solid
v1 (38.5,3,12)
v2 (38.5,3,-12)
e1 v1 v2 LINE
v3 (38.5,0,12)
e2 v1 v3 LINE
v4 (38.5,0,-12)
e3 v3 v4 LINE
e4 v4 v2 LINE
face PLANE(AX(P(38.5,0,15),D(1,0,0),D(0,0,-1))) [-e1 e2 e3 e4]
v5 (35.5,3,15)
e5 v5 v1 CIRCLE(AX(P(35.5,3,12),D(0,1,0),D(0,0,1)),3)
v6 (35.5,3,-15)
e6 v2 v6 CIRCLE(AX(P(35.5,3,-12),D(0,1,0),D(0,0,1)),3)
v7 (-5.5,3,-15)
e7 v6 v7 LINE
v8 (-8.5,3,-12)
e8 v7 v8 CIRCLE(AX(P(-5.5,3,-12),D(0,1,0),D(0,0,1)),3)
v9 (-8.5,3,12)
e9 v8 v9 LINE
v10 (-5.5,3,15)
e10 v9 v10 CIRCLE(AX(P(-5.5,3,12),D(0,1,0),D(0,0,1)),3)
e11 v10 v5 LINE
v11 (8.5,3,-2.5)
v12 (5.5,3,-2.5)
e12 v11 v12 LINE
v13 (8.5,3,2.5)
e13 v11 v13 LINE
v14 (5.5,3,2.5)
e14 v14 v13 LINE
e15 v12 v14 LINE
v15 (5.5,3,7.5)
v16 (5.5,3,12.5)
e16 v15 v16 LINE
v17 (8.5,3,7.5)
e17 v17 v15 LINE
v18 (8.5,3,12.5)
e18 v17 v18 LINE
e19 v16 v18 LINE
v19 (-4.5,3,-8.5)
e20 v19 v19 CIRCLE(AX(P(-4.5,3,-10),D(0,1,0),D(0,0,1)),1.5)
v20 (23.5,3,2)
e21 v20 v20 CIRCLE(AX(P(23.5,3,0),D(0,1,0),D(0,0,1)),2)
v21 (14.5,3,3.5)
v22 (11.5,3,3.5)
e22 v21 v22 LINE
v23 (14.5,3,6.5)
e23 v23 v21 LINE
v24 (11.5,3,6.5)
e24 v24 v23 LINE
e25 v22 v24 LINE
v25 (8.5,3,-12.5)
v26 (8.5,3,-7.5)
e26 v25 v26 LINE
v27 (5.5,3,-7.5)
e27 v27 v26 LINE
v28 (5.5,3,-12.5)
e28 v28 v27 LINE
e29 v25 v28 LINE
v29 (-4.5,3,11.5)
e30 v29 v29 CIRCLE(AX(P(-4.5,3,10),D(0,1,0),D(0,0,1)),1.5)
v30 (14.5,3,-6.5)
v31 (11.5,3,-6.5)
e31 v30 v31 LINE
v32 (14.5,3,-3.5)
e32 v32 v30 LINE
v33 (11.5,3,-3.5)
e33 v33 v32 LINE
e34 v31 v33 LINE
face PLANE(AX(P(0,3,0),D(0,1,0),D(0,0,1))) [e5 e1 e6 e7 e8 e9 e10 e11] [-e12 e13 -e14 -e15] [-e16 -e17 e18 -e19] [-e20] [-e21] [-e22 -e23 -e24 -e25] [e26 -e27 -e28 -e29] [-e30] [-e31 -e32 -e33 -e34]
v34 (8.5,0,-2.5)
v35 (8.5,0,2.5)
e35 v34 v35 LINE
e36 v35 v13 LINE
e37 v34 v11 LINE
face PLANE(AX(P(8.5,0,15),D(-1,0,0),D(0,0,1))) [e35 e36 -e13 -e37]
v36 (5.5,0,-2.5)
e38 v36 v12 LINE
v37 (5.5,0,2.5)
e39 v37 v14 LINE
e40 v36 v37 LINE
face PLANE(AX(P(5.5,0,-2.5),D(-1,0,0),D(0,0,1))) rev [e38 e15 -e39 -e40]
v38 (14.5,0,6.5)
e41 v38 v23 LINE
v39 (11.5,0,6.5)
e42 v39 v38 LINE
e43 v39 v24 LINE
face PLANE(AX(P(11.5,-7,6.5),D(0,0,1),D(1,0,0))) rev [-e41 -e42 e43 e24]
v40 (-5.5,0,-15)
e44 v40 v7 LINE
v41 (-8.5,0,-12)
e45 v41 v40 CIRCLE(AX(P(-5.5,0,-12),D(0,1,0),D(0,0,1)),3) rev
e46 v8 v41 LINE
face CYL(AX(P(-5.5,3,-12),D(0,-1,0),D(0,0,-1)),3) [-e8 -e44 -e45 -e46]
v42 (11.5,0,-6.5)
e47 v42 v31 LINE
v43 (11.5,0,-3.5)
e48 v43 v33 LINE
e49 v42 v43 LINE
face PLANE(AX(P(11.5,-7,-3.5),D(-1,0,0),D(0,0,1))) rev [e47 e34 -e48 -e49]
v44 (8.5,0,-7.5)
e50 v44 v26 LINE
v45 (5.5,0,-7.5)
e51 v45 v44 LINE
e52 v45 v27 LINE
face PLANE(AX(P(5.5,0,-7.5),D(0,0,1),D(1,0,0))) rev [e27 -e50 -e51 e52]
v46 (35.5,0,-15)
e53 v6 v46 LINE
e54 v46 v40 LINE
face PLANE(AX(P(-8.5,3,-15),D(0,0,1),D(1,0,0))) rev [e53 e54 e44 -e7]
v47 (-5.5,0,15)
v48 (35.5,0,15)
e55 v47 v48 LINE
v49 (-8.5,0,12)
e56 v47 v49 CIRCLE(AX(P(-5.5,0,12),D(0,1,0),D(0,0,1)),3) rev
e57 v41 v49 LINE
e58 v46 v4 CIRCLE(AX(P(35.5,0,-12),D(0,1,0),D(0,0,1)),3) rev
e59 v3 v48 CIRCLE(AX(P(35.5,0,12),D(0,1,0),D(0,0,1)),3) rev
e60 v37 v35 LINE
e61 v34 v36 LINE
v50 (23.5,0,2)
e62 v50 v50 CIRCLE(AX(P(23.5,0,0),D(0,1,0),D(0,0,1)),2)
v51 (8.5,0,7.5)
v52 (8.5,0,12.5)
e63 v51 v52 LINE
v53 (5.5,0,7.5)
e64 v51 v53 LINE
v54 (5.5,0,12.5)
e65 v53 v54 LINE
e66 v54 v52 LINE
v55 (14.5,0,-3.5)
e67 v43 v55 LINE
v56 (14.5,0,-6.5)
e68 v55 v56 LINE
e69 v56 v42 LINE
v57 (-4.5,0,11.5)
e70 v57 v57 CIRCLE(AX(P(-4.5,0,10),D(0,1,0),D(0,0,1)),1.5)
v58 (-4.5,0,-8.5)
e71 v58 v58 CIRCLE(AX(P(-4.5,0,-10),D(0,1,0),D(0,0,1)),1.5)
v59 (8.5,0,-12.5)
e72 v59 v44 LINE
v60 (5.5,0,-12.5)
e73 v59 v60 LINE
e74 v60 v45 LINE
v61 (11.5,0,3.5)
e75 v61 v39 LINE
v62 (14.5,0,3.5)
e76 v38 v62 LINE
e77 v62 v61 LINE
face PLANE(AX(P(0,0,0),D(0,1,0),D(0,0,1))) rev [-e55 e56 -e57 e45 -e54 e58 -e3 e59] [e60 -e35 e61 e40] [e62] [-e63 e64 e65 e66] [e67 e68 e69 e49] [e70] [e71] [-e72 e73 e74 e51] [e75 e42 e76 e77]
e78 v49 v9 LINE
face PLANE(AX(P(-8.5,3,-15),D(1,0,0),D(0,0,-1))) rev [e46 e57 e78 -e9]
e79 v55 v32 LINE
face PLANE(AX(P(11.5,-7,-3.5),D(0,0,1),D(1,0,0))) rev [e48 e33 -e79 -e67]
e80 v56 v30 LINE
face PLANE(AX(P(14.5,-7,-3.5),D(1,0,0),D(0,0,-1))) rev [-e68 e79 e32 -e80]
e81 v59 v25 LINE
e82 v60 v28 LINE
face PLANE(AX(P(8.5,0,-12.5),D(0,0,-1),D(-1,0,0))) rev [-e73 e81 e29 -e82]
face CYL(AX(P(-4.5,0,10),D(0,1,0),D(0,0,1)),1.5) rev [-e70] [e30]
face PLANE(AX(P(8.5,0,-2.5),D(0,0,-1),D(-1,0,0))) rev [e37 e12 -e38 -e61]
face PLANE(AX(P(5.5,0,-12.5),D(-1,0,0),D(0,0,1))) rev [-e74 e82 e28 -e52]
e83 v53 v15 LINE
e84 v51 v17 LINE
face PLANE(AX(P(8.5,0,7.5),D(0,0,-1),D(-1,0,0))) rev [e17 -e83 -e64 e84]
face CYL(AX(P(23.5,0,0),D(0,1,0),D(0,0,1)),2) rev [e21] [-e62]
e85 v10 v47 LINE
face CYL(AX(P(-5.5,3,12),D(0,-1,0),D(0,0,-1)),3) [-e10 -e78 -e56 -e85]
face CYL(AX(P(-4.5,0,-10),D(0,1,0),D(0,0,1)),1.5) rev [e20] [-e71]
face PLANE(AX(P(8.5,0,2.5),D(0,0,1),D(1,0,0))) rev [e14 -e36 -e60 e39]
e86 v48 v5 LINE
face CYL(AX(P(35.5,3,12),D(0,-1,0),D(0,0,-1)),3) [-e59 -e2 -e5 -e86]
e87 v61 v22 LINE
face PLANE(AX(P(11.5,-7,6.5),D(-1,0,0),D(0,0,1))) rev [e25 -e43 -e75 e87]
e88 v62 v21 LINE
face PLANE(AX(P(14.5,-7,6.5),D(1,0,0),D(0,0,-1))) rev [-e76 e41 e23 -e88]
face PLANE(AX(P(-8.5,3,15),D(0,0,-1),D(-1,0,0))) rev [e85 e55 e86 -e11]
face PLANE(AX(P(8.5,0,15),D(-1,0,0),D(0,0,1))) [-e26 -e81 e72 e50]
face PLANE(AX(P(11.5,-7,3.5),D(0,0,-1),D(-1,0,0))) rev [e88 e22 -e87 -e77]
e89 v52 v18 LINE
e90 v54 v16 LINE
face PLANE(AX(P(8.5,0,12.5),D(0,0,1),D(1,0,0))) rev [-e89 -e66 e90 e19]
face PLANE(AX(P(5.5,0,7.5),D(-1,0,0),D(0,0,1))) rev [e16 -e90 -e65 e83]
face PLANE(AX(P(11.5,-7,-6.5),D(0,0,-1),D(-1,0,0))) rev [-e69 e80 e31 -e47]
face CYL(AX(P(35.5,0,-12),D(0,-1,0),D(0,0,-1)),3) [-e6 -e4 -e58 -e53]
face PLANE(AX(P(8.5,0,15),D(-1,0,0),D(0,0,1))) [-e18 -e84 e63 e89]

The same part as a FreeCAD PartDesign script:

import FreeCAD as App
import Part
import Sketcher
from FreeCAD import Vector
Q = App.Units.Quantity


def edges_at(feature, points):
    """Names of the edges that pass closest to the given points."""
    edges = feature.Shape.Edges
    near = lambda p: min(range(len(edges)), key=lambda i: edges[i].distToShape(Part.Vertex(*p))[0])
    return sorted({f"Edge{near(p) + 1}" for p in points})


def add_polygon(sketch, points):
    """Adds a closed chain of lines whose ends are joined by coincident constraints."""
    first, n = sketch.GeometryCount, len(points)
    for a, b in zip(points, points[1:] + points[:1]):
        sketch.addGeometry(Part.LineSegment(App.Vector(*a, 0), App.Vector(*b, 0)), False)
    for i in range(n):
        sketch.addConstraint(Sketcher.Constraint("Coincident", first + i, 2, first + (i + 1) % n, 1))

doc = App.newDocument("Part")
body = doc.addObject("PartDesign::Body", "Body")

# Sketch on XZ plane
sketch1 = body.newObject("Sketcher::SketchObject", "Sketch")
sketch1.AttachmentSupport = (doc.getObject("XZ_Plane"), [""])
sketch1.MapMode = "FlatFace"
add_polygon(sketch1, [(-8, -15), (-8, 15), (8, 15), (8, -15)])  # lines 0-3
sketch1.addConstraint([
    Sketcher.Constraint("Vertical", 0),
    Sketcher.Constraint("Horizontal", 1),
    Sketcher.Constraint("Vertical", 2),
    Sketcher.Constraint("Horizontal", 3),
    Sketcher.Constraint("Symmetric", 0, 2, 2, 2, -1, 1),
    Sketcher.Constraint("DistanceX", 1, 1, 1, 2, Q("17 mm")),
    Sketcher.Constraint("DistanceY", 0, 1, 0, 2, Q("30 mm")),
])
pad1 = body.newObject("PartDesign::Pad", "Pad")
pad1.Profile = sketch1
pad1.Length = 3
pad1.Reversed = True

# Sketch on XZ plane
sketch2 = body.newObject("Sketcher::SketchObject", "Sketch001")
sketch2.AttachmentSupport = (doc.getObject("XZ_Plane"), [""])
sketch2.MapMode = "FlatFace"
sketch2.AttachmentOffset = App.Placement(Vector(0, 0, -3), App.Rotation())
add_polygon(sketch2, [(5.5, -12.5), (5.5, -7.5), (8.5, -7.5), (8.5, -12.5)])  # lines 0-3
add_polygon(sketch2, [(5.5, -2.5), (5.5, 2.5), (8.5, 2.5), (8.5, -2.5)])  # lines 4-7
add_polygon(sketch2, [(5.5, 7.5), (5.5, 12.5), (8.5, 12.5), (8.5, 7.5)])  # lines 8-11
sketch2.addConstraint([
    Sketcher.Constraint("Vertical", 0),
    Sketcher.Constraint("Horizontal", 1),
    Sketcher.Constraint("Vertical", 2),
    Sketcher.Constraint("Horizontal", 3),
    Sketcher.Constraint("Vertical", 4),
    Sketcher.Constraint("Horizontal", 5),
    Sketcher.Constraint("Vertical", 6),
    Sketcher.Constraint("Horizontal", 7),
    Sketcher.Constraint("Vertical", 8),
    Sketcher.Constraint("Horizontal", 9),
    Sketcher.Constraint("Vertical", 10),
    Sketcher.Constraint("Horizontal", 11),
    Sketcher.Constraint("Symmetric", 3, 2, 8, 2, -1),
    Sketcher.Constraint("Symmetric", 1, 2, 10, 2, -1),
    Sketcher.Constraint("Vertical", 3, 2, 4, 2),
    Sketcher.Constraint("Vertical", 2, 2, 5, 2),
    Sketcher.Constraint("Equal", 2, 4),
    Sketcher.Constraint("DistanceX", 1, 1, 1, 2, Q("3 mm")),
    Sketcher.Constraint("DistanceY", 0, 1, 0, 2, Q("5 mm")),
    Sketcher.Constraint("DistanceY", 0, 2, 4, 2, Q("10 mm")),
    Sketcher.Constraint("DistanceY", 4, 2, 8, 2, Q("10 mm")),
    Sketcher.Constraint("DistanceX", -1, 1, 0, 2, Q("5.5 mm")),
])
pocket1 = body.newObject("PartDesign::Pocket", "Pocket")
pocket1.Profile = sketch2
pocket1.Length = 3
pocket1.Reversed = True

# Sketch on XZ plane
sketch3 = body.newObject("Sketcher::SketchObject", "Sketch002")
sketch3.AttachmentSupport = (doc.getObject("XZ_Plane"), [""])
sketch3.MapMode = "FlatFace"
sketch3.AttachmentOffset = App.Placement(Vector(0, 0, -3), App.Rotation())
sketch3.addGeometry([
    Part.Circle(Vector(-4.5, -10, 0), Vector(0, 0, 1), 1.5),
    Part.Circle(Vector(-4.5, 10, 0), Vector(0, 0, 1), 1.5),
], False)
sketch3.addConstraint([
    Sketcher.Constraint("Equal", 0, 1),
    Sketcher.Constraint("Symmetric", 0, 3, 1, 3, -1),
    Sketcher.Constraint("Diameter", 0, Q("3 mm")),
    Sketcher.Constraint("DistanceY", 0, 3, -1, 1, Q("10 mm")),
    Sketcher.Constraint("DistanceX", 0, 3, -1, 1, Q("4.5 mm")),
])
pocket2 = body.newObject("PartDesign::Pocket", "Pocket001")
pocket2.Profile = sketch3
pocket2.Length = 3
pocket2.Reversed = True
doc.recompute()

fillet = body.newObject("PartDesign::Fillet", "Fillet")
fillet.Base = (pocket2, edges_at(pocket2, [(-8.5, 1.5, 15), (-8.5, 1.5, -15)]))
fillet.Radius = 3

# Sketch on XZ plane
sketch4 = body.newObject("Sketcher::SketchObject", "Sketch003")
sketch4.AttachmentSupport = (doc.getObject("XZ_Plane"), [""])
sketch4.MapMode = "FlatFace"
sketch4.AttachmentOffset = App.Placement(Vector(0, 0, -3), App.Rotation())
add_polygon(sketch4, [(8, -15), (8, 15), (38, 15), (38, -15)])  # lines 0-3
sketch4.addConstraint([
    Sketcher.Constraint("Vertical", 0),
    Sketcher.Constraint("Horizontal", 1),
    Sketcher.Constraint("Vertical", 2),
    Sketcher.Constraint("Horizontal", 3),
    Sketcher.Constraint("Equal", 3, 0),
    Sketcher.Constraint("DistanceX", 1, 1, 1, 2, Q("30 mm")),
    Sketcher.Constraint("DistanceY", -1, 1, 0, 2, Q("15 mm")),
    Sketcher.Constraint("DistanceX", -1, 1, 0, 2, Q("8.5 mm")),
])
pad2 = body.newObject("PartDesign::Pad", "Pad001")
pad2.Profile = sketch4
pad2.Length = 3
doc.recompute()

fillet2 = body.newObject("PartDesign::Fillet", "Fillet001")
fillet2.Base = (pad2, edges_at(pad2, [(38.5, 1.5, 15), (38.5, 1.5, -15)]))
fillet2.Radius = 3

# Sketch on XZ plane
sketch5 = body.newObject("Sketcher::SketchObject", "Sketch004")
sketch5.AttachmentSupport = (doc.getObject("XZ_Plane"), [""])
sketch5.MapMode = "FlatFace"
sketch5.AttachmentOffset = App.Placement(Vector(0, 0, -3), App.Rotation())
sketch5.addGeometry(Part.Circle(Vector(23.5, 0, 0), Vector(0, 0, 1), 2), False)
sketch5.addConstraint([
    Sketcher.Constraint("PointOnObject", 0, 3, -1),
    Sketcher.Constraint("Diameter", 0, Q("4 mm")),
    Sketcher.Constraint("DistanceX", -1, 1, 0, 3, Q("23.5 mm")),
])
pocket3 = body.newObject("PartDesign::Pocket", "Pocket002")
pocket3.Profile = sketch5
pocket3.Length = 3
pocket3.Reversed = True

# Sketch on XZ plane
sketch6 = body.newObject("Sketcher::SketchObject", "Sketch005")
sketch6.AttachmentSupport = (doc.getObject("XZ_Plane"), [""])
sketch6.MapMode = "FlatFace"
sketch6.AttachmentOffset = App.Placement(Vector(0, 0, -3), App.Rotation())
add_polygon(sketch6, [(11.5, -6.5), (11.5, -3.5), (14.5, -3.5), (14.5, -6.5)])  # lines 0-3
add_polygon(sketch6, [(11.5, 3.5), (11.5, 6.5), (14.5, 6.5), (14.5, 3.5)])  # lines 4-7
sketch6.addConstraint([
    Sketcher.Constraint("Vertical", 0),
    Sketcher.Constraint("Horizontal", 1),
    Sketcher.Constraint("Vertical", 2),
    Sketcher.Constraint("Horizontal", 3),
    Sketcher.Constraint("Vertical", 4),
    Sketcher.Constraint("Horizontal", 5),
    Sketcher.Constraint("Vertical", 6),
    Sketcher.Constraint("Horizontal", 7),
    Sketcher.Constraint("Symmetric", 3, 2, 4, 2, -1),
    Sketcher.Constraint("Symmetric", 1, 2, 6, 2, -1),
    Sketcher.Constraint("Equal", 7, 0),
    Sketcher.Constraint("DistanceX", 1, 1, 1, 2, Q("3 mm")),
    Sketcher.Constraint("DistanceY", 0, 2, 4, 2, Q("10 mm")),
    Sketcher.Constraint("DistanceX", -1, 1, 0, 2, Q("11.5 mm")),
])
pocket4 = body.newObject("PartDesign::Pocket", "Pocket003")
pocket4.Profile = sketch6
pocket4.Length = 10
pocket4.Reversed = True

doc.recompute()
